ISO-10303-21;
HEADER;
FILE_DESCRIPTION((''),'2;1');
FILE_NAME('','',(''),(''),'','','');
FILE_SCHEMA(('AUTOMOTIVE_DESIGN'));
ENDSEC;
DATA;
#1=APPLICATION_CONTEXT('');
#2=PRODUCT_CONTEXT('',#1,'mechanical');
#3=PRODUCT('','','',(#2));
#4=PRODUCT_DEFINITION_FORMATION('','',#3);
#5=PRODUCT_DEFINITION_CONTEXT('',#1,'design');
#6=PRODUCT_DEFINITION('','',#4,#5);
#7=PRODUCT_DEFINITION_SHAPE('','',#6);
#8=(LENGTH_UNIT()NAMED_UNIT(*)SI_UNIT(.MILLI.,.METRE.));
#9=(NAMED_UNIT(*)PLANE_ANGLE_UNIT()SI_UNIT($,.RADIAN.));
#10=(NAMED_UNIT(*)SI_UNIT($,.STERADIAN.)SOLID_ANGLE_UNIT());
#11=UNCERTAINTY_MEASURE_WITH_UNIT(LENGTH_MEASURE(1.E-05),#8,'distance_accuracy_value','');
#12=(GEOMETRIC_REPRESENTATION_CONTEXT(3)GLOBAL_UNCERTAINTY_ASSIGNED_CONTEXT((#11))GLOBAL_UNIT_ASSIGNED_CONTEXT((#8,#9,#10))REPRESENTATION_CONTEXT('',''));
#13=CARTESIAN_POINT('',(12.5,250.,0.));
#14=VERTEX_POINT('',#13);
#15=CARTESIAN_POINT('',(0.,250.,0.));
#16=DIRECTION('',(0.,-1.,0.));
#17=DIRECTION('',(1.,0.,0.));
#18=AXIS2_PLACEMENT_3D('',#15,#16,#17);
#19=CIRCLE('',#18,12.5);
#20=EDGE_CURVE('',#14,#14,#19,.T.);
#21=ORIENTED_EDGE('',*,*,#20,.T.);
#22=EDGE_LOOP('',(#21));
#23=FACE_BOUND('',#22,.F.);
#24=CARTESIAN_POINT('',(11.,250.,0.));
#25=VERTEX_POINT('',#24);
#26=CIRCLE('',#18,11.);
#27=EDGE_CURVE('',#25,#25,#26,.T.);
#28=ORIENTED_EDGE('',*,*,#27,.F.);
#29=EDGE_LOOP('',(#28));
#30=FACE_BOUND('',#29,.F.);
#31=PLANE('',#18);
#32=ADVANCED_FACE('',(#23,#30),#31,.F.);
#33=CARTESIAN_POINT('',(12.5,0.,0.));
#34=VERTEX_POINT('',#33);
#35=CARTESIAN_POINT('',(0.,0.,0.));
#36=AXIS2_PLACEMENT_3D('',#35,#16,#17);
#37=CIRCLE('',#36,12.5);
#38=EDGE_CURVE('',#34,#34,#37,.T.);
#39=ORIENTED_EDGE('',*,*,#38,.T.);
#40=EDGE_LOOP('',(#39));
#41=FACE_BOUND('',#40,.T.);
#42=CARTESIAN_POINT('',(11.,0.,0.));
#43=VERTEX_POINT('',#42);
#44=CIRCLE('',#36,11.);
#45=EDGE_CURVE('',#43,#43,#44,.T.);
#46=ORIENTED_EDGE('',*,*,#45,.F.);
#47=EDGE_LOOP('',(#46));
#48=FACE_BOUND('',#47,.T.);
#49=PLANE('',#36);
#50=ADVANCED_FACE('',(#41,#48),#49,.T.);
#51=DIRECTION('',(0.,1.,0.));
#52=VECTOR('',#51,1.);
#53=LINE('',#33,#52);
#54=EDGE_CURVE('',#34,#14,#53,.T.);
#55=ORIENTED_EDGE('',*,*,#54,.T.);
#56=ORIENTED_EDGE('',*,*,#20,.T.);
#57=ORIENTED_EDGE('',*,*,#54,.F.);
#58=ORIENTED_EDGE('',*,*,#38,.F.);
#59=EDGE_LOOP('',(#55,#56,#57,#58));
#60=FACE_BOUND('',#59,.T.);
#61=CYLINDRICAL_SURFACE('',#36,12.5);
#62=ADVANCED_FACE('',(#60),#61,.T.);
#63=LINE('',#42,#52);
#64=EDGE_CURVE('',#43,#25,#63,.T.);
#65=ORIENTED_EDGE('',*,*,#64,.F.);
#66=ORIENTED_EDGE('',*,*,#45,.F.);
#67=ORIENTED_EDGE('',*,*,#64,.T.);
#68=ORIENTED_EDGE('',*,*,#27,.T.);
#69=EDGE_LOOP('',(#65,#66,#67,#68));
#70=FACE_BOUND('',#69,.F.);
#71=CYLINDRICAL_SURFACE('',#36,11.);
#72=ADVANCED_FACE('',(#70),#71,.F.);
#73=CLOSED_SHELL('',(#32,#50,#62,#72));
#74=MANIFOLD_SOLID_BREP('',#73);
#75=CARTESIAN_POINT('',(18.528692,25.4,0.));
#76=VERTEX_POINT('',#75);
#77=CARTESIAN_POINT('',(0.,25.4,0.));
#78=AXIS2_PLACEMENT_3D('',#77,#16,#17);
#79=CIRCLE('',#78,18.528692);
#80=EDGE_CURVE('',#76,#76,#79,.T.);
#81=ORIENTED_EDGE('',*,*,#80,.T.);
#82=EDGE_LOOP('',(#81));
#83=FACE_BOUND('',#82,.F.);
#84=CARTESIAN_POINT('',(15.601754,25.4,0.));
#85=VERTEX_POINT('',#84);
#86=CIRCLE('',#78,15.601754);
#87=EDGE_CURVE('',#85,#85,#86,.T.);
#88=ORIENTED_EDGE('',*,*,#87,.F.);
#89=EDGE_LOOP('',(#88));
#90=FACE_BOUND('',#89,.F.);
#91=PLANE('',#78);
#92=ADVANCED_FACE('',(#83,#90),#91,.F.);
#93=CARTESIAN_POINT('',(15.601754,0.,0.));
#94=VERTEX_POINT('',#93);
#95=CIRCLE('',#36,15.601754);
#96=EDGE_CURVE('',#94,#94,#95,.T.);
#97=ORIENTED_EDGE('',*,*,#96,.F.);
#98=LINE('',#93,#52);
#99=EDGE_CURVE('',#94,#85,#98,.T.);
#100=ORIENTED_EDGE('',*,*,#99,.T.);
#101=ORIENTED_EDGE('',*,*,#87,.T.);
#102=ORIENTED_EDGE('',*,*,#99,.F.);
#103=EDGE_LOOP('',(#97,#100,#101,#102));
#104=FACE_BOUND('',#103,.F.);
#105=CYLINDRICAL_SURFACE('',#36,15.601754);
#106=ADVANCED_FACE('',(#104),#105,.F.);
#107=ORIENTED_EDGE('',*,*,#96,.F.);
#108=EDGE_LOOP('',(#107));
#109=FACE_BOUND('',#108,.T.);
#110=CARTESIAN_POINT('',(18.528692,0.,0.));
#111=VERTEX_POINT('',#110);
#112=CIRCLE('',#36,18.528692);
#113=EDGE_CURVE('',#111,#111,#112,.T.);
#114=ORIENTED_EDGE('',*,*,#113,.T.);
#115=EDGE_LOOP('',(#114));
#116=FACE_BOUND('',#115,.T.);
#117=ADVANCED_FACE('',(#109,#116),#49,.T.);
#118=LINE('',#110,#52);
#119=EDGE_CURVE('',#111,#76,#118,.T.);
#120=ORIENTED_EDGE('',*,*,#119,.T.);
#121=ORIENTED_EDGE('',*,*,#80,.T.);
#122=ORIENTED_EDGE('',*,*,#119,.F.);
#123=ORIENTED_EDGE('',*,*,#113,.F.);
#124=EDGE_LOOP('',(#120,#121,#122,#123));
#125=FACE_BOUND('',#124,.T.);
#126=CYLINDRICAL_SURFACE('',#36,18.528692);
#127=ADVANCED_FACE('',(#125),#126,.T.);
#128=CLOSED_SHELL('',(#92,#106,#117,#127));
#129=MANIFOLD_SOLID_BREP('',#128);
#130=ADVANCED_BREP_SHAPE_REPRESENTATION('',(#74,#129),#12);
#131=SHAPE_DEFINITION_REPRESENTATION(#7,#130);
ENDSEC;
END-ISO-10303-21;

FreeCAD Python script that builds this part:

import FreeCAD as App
import Part
import Sketcher
from FreeCAD import Vector

doc = App.newDocument("Part")
body = doc.addObject("PartDesign::Body", "Body")

# Sketch on XZ plane
sketch1 = body.newObject("Sketcher::SketchObject", "Sketch")
sketch1.AttachmentSupport = (doc.getObject("XZ_Plane"), [""])
sketch1.MapMode = "FlatFace"
sketch1.addGeometry([
    Part.Circle(Vector(0, 0, 0), Vector(0, 0, 1), 12),
    Part.Circle(Vector(0, 0, 0), Vector(0, 0, 1), 11),
], False)
sketch1.addConstraint([
    Sketcher.Constraint("Coincident", 0, 3, -1, 1),
    Sketcher.Constraint("Coincident", 1, 3, -1, 1),
    Sketcher.Constraint("Diameter", 0, 25.0),
    Sketcher.Constraint("Diameter", 1, 22.0),
])
pad1 = body.newObject("PartDesign::Pad", "Pad")
pad1.Profile = sketch1
pad1.Length = 250
pad1.Reversed = True
body2 = doc.addObject("PartDesign::Body", "Body001")

# Sketch on XZ plane
sketch2 = body2.newObject("Sketcher::SketchObject", "Sketch001")
sketch2.AttachmentSupport = (doc.getObject("XZ_Plane001"), [""])
sketch2.MapMode = "FlatFace"
sketch2.addGeometry([
    Part.Circle(Vector(0, 0, 0), Vector(0, 0, 1), 19),
    Part.Circle(Vector(0, 0, 0), Vector(0, 0, 1), 16),
], False)
sketch2.addConstraint([
    Sketcher.Constraint("Coincident", 0, 3, -1, 1),
    Sketcher.Constraint("Coincident", 1, 3, -1, 1),
    Sketcher.Constraint("Diameter", 0, 37.057384),
    Sketcher.Constraint("Diameter", 1, 31.203508),
])
pad2 = body2.newObject("PartDesign::Pad", "Pad001")
pad2.Profile = sketch2
pad2.Length = 25.4
pad2.Reversed = True

doc.recompute()
